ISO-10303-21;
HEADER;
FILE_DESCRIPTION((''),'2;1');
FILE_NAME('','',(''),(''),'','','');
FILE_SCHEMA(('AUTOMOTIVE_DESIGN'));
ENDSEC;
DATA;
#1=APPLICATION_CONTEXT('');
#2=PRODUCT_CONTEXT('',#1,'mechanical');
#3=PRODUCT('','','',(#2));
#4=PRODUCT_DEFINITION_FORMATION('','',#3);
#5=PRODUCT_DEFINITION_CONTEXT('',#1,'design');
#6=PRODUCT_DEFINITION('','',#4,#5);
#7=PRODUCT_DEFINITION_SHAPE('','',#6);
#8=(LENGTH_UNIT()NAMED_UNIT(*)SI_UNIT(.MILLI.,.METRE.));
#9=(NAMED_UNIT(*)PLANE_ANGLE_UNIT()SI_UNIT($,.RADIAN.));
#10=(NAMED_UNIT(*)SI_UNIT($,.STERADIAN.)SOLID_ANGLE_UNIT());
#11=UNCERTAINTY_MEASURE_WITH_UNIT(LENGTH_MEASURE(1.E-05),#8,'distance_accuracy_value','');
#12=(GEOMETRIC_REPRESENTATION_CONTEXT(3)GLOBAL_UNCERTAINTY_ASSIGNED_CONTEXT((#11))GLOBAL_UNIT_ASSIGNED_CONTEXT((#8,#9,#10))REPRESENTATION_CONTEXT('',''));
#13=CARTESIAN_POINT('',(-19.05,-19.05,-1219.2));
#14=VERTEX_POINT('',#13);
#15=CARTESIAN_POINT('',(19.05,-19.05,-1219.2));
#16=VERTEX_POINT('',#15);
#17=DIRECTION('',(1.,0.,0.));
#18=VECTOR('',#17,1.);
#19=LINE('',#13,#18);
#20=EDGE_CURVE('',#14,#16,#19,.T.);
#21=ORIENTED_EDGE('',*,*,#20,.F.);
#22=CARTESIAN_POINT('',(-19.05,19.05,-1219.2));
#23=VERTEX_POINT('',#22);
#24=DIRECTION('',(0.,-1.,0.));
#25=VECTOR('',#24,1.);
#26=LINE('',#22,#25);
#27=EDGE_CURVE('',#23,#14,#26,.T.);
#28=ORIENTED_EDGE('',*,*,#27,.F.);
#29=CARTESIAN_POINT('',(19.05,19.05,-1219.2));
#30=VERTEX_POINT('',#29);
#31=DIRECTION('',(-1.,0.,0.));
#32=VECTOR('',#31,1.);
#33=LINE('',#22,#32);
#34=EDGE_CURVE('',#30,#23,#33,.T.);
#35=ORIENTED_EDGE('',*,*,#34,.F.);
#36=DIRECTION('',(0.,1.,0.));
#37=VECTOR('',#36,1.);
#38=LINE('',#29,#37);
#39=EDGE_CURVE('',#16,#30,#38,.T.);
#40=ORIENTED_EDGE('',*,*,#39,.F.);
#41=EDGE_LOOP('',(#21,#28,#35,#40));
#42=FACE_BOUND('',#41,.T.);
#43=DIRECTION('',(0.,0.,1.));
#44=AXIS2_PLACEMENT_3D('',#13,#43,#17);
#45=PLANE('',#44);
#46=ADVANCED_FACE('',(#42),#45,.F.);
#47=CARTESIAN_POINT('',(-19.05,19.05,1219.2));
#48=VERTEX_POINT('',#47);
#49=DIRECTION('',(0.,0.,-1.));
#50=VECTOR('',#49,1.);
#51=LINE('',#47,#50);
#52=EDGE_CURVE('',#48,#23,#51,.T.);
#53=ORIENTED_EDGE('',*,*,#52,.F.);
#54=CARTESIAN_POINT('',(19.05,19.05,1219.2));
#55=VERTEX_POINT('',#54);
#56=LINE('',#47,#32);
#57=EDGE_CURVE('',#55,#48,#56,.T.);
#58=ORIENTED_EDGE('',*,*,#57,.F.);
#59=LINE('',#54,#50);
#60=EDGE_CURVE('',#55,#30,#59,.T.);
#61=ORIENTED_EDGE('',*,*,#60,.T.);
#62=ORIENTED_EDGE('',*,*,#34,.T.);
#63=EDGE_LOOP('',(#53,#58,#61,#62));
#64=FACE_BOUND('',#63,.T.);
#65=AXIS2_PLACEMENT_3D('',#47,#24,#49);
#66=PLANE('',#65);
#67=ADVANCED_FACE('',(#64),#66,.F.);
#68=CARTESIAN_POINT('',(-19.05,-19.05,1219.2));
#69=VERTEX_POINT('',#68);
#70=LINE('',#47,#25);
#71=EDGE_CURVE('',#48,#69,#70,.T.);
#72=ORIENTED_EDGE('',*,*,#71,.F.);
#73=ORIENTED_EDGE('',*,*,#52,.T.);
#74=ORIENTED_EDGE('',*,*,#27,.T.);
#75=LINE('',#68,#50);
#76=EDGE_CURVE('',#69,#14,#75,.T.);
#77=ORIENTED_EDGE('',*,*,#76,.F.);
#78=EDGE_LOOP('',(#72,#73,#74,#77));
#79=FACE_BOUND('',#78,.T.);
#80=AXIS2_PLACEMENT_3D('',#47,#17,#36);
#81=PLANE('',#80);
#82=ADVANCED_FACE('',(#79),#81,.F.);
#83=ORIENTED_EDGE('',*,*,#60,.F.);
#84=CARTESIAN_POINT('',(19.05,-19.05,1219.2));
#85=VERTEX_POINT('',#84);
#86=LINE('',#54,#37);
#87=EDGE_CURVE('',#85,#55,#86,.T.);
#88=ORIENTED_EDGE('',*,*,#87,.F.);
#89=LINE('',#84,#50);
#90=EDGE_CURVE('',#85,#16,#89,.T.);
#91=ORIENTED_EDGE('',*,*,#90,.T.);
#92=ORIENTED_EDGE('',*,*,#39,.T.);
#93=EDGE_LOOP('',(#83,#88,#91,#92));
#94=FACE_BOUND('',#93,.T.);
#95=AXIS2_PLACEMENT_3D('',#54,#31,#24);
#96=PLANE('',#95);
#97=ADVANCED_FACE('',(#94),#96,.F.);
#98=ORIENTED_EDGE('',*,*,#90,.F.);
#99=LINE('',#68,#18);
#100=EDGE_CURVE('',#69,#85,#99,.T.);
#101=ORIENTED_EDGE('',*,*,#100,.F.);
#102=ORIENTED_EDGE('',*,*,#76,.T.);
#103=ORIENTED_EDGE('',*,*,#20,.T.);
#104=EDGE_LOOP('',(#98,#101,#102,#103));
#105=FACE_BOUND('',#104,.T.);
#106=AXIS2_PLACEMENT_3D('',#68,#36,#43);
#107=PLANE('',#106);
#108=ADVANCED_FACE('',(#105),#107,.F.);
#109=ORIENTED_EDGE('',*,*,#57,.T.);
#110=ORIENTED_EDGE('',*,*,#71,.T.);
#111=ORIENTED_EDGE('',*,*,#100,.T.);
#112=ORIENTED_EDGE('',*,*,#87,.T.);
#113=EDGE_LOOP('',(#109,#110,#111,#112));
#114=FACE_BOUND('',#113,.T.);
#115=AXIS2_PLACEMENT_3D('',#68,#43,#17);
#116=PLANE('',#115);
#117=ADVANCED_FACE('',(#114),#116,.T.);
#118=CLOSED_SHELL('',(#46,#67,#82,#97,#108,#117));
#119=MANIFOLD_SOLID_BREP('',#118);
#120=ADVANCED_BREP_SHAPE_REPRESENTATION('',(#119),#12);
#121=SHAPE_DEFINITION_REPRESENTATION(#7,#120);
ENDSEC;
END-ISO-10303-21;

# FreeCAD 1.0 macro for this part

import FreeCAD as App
import Part
import Sketcher
Q = App.Units.Quantity

doc = App.newDocument("Part")
body = doc.addObject("PartDesign::Body", "Body")

sketch1 = body.newObject("Sketcher::SketchObject", "Sketch")
sketch1.AttachmentSupport = (doc.getObject("XY_Plane"), [""])
sketch1.MapMode = "FlatFace"
sketch1.addGeometry([
    Part.LineSegment(App.Vector(-19, 19, 0), App.Vector(-19, -19, 0)),
    Part.LineSegment(App.Vector(-19, -19, 0), App.Vector(19, -19, 0)),
    Part.LineSegment(App.Vector(19, -19, 0), App.Vector(19, 19, 0)),
    Part.LineSegment(App.Vector(19, 19, 0), App.Vector(-19, 19, 0)),
], False)
sketch1.addConstraint([
    Sketcher.Constraint("Coincident", 0, 2, 1, 1),
    Sketcher.Constraint("Coincident", 1, 2, 2, 1),
    Sketcher.Constraint("Coincident", 2, 2, 3, 1),
    Sketcher.Constraint("Coincident", 3, 2, 0, 1),
    Sketcher.Constraint("Vertical", 0),
    Sketcher.Constraint("Horizontal", 1),
    Sketcher.Constraint("Vertical", 2),
    Sketcher.Constraint("Horizontal", 3),
    Sketcher.Constraint("Symmetric", 0, 2, 2, 2, -1, 1),
    Sketcher.Constraint("Equal", 3, 0),
    Sketcher.Constraint("DistanceX", 1, 1, 1, 2, Q("1.5 in")),
])
pad1 = body.newObject("PartDesign::Pad", "Pad")
pad1.Profile = sketch1
pad1.Length = Q("96 in")
pad1.Midplane = True

doc.recompute()
